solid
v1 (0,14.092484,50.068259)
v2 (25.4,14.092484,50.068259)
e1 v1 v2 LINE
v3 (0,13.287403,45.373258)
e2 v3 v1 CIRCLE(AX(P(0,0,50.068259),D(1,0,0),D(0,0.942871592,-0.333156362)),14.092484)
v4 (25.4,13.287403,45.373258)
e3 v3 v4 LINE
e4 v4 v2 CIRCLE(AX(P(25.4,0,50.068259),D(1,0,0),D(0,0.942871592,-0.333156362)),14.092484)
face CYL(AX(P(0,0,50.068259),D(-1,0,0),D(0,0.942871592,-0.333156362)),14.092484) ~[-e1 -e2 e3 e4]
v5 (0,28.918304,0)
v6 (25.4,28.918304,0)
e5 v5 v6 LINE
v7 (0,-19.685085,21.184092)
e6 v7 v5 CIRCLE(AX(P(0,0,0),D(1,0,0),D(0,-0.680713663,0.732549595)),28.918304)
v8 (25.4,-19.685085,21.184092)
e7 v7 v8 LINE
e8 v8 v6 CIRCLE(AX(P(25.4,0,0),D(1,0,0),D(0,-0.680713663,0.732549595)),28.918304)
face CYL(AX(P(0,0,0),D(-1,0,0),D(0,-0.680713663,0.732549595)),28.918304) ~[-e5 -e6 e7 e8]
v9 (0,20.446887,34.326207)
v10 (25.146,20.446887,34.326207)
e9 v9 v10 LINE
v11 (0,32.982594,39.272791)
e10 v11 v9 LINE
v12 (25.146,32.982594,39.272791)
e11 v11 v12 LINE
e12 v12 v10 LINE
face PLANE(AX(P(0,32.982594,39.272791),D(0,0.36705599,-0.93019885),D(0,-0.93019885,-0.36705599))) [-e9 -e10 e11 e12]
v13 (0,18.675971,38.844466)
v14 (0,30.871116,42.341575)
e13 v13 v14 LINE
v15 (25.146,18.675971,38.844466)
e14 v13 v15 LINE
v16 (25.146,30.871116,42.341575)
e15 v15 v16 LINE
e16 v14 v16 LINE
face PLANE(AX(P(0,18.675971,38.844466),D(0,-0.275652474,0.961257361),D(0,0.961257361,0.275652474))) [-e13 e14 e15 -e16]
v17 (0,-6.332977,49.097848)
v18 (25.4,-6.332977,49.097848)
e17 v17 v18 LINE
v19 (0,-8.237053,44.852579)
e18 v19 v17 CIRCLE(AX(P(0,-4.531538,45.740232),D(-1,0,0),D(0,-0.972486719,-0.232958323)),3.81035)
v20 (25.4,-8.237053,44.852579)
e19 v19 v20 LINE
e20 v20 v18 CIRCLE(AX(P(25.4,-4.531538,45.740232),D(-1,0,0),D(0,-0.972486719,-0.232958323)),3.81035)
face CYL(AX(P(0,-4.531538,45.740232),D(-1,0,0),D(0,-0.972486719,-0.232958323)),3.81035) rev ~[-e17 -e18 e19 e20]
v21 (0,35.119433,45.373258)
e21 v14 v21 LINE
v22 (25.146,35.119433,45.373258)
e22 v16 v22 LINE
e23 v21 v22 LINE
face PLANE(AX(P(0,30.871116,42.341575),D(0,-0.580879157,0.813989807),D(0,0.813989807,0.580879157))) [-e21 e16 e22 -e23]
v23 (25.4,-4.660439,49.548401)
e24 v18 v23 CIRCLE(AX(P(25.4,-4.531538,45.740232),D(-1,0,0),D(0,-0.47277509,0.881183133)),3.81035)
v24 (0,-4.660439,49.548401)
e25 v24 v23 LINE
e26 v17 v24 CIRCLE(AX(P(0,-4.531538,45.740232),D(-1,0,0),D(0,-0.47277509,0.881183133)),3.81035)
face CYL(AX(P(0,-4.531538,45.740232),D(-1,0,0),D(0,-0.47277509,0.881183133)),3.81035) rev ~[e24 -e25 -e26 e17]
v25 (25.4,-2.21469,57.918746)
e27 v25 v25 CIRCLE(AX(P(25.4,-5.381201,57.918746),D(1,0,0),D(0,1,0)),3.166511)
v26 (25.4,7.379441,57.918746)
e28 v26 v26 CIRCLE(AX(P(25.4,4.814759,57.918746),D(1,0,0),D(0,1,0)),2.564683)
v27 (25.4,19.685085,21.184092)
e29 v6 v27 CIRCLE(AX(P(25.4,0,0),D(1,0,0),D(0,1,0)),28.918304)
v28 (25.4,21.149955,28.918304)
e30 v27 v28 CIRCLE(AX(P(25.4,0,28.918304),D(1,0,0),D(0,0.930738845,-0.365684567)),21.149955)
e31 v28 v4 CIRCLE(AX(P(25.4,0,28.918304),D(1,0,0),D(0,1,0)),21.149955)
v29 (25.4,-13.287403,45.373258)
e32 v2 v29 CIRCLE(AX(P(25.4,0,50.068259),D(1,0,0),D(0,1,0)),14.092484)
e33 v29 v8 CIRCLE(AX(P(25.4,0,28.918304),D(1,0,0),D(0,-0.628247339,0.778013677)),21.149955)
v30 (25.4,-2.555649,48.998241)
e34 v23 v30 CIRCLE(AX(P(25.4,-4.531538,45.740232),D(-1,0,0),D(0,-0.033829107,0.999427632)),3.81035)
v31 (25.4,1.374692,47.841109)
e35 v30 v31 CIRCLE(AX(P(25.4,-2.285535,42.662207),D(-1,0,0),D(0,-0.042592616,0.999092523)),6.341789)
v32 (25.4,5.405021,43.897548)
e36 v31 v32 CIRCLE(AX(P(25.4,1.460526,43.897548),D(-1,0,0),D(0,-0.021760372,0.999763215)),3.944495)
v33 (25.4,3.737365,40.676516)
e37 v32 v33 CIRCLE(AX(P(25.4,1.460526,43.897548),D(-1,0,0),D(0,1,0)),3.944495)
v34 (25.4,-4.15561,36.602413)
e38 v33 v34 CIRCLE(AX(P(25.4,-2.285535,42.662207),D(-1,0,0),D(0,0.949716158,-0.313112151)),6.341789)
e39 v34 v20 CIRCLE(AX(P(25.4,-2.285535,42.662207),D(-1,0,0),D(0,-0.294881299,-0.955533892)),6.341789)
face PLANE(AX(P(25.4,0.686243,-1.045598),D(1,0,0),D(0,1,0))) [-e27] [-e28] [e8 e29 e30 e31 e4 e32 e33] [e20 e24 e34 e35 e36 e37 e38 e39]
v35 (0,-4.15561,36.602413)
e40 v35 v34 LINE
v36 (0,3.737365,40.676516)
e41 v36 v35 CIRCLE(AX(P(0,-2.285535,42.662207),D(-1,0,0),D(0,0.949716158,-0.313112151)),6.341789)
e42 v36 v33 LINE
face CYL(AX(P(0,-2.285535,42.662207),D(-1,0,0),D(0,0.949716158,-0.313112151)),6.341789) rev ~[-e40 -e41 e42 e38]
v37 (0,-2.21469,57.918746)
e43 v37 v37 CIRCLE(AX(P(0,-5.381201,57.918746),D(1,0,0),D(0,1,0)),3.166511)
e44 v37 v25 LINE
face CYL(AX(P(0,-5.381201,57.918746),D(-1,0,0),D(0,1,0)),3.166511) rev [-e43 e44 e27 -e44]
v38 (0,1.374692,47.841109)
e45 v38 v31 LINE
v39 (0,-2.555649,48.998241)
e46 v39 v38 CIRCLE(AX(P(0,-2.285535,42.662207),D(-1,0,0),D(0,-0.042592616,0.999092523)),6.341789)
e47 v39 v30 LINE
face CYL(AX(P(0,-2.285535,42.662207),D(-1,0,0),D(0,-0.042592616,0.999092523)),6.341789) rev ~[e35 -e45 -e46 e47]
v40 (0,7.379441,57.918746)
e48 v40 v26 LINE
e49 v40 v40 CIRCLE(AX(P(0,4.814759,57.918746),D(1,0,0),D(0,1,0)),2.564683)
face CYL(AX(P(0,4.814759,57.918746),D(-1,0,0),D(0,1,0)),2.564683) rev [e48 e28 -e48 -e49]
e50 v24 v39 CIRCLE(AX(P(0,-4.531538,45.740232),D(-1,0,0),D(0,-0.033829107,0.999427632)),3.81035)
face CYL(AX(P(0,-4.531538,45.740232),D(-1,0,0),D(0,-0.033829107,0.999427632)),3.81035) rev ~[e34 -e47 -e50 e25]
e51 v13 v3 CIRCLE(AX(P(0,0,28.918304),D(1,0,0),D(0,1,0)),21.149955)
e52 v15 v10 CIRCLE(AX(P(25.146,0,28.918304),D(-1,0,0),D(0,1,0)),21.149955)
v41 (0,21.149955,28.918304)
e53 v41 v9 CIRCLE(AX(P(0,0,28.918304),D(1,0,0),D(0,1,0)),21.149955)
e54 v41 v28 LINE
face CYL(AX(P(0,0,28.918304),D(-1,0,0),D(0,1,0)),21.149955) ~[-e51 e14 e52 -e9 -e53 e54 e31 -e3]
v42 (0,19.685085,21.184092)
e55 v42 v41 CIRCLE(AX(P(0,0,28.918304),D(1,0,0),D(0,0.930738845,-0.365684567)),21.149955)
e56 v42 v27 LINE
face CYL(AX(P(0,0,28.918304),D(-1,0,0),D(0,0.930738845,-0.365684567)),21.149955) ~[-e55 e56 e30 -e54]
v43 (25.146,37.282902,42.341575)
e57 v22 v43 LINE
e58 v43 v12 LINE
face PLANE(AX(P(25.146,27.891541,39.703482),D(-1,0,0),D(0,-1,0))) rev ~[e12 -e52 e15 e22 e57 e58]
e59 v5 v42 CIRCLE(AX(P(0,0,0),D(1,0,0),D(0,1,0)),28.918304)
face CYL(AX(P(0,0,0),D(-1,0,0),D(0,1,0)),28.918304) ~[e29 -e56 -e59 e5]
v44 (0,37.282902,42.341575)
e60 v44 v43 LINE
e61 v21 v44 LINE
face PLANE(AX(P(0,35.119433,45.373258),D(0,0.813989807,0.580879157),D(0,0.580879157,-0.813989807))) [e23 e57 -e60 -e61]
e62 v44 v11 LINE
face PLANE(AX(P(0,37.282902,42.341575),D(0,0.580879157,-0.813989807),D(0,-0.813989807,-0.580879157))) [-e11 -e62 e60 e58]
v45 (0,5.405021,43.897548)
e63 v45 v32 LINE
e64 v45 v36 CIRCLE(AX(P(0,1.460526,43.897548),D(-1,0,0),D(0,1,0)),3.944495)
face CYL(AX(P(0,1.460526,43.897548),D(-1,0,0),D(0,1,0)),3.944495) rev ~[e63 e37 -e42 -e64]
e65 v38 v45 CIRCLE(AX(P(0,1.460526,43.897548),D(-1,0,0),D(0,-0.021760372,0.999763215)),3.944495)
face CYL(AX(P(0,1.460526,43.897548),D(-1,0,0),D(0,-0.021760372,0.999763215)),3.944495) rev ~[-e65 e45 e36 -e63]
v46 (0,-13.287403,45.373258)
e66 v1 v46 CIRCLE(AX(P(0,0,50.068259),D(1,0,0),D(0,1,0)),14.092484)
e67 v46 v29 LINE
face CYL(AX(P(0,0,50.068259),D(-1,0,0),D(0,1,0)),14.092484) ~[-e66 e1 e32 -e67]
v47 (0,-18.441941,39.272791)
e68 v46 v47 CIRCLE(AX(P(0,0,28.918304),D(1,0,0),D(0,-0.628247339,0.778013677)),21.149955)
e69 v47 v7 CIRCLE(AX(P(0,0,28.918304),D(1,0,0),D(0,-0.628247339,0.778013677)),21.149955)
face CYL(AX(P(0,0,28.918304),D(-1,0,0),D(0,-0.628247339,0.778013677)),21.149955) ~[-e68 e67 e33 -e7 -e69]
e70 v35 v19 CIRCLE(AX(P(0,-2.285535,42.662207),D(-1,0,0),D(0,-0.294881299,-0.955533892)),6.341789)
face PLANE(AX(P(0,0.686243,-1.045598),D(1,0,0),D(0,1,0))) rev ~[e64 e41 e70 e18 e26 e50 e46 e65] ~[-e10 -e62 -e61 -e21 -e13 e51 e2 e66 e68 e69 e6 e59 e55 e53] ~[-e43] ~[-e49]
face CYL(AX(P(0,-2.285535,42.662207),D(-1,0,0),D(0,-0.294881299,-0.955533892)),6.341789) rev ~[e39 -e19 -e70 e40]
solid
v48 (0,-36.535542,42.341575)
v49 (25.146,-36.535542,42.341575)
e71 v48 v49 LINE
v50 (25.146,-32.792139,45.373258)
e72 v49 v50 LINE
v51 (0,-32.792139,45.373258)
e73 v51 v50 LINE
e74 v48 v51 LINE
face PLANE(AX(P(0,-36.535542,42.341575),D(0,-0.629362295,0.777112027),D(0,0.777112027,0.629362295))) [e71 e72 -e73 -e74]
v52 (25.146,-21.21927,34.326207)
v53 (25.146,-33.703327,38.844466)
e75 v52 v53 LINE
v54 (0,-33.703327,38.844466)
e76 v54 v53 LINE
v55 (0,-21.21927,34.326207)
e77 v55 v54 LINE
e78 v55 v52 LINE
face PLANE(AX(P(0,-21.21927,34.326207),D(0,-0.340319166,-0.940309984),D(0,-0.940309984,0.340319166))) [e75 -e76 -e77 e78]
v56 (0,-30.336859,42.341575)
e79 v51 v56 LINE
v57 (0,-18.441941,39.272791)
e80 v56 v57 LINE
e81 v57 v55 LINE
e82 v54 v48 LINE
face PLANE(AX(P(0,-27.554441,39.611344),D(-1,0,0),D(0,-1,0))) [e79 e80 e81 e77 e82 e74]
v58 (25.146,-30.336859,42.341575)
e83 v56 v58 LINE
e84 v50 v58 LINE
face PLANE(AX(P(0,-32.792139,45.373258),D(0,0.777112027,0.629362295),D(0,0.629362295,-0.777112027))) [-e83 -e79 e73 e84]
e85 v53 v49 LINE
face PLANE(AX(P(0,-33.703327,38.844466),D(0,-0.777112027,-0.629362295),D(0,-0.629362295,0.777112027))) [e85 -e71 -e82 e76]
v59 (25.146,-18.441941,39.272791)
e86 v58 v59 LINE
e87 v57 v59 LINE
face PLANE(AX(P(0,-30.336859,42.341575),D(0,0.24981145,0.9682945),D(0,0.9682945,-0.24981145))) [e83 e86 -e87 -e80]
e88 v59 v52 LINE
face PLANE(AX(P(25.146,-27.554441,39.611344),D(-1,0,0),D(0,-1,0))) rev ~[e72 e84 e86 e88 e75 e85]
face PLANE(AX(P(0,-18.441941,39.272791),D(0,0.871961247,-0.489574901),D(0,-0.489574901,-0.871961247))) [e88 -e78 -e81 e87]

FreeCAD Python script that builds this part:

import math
import FreeCAD as App
import Part
import Sketcher
Q = App.Units.Quantity


def add_polygon(sketch, points):
    """Adds a closed chain of lines whose ends are joined by coincident constraints."""
    first, n = sketch.GeometryCount, len(points)
    for a, b in zip(points, points[1:] + points[:1]):
        sketch.addGeometry(Part.LineSegment(App.Vector(*a, 0), App.Vector(*b, 0)), False)
    for i in range(n):
        sketch.addConstraint(Sketcher.Constraint("Coincident", first + i, 2, first + (i + 1) % n, 1))

doc = App.newDocument("Part")
params = doc.addObject("Spreadsheet::Sheet", "Params")
for row, (alias, value) in enumerate([
    ("pad1_length", "1 in"),
    ("pad2_length", "0.99 in"),
], start=1):
    params.set(f"A{row}", alias)
    params.set(f"B{row}", "=" + value)
    params.setAlias(f"B{row}", alias)

body = doc.addObject("PartDesign::Body", "Body")
body.AllowCompound = True

sketch1 = body.newObject("Sketcher::SketchObject", "Sketch")
sketch1.AttachmentSupport = (doc.getObject("YZ_Plane"), [""])
sketch1.MapMode = "FlatFace"
sketch1.addGeometry([
    Part.ArcOfCircle(Part.Circle(App.Vector(0, 28.9, 0), App.Vector(0, 0, 1), 21.1), math.radians(0), math.radians(51)),
    Part.ArcOfCircle(Part.Circle(App.Vector(0, 50.1, 0), App.Vector(0, 0, 1), 14.1), math.radians(-19.46), math.radians(0)),
    Part.ArcOfCircle(Part.Circle(App.Vector(0, 50.1, 0), App.Vector(0, 0, 1), 14.1), math.radians(0), math.radians(199)),
    Part.ArcOfCircle(Part.Circle(App.Vector(0, 28.9, 0), App.Vector(0, 0, 1), 21.1), math.radians(129), math.radians(201)),
    Part.ArcOfCircle(Part.Circle(App.Vector(0, 0, 0), App.Vector(0, 0, 1), 28.9), math.radians(133), math.radians(360)),
    Part.ArcOfCircle(Part.Circle(App.Vector(0, 0, 0), App.Vector(0, 0, 1), 28.9), math.radians(0), math.radians(47)),
    Part.ArcOfCircle(Part.Circle(App.Vector(0, 28.9, 0), App.Vector(0, 0, 1), 21.1), math.radians(-21), math.radians(0)),
    Part.ArcOfCircle(Part.Circle(App.Vector(-4.5, 45.7, 0), App.Vector(0, 0, 1), 3.8), math.radians(92), math.radians(118)),
    Part.ArcOfCircle(Part.Circle(App.Vector(-4.5, 45.7, 0), App.Vector(0, 0, 1), 3.8), math.radians(59), math.radians(92)),
    Part.ArcOfCircle(Part.Circle(App.Vector(-2.3, 42.7, 0), App.Vector(0, 0, 1), 6.3), math.radians(55), math.radians(92)),
    Part.ArcOfCircle(Part.Circle(App.Vector(1.5, 43.9, 0), App.Vector(0, 0, 1), 3.9), math.radians(0), math.radians(91)),
    Part.ArcOfCircle(Part.Circle(App.Vector(1.5, 43.9, 0), App.Vector(0, 0, 1), 3.9), math.radians(-55), math.radians(0)),
    Part.ArcOfCircle(Part.Circle(App.Vector(-2.3, 42.7, 0), App.Vector(0, 0, 1), 6.3), math.radians(-107), math.radians(-18)),
    Part.ArcOfCircle(Part.Circle(App.Vector(-2.3, 42.7, 0), App.Vector(0, 0, 1), 6.3), math.radians(160), math.radians(253)),
    Part.ArcOfCircle(Part.Circle(App.Vector(-4.5, 45.7, 0), App.Vector(0, 0, 1), 3.8), math.radians(118), math.radians(193)),
    Part.Circle(App.Vector(-5.4, 57.9, 0), App.Vector(0, 0, 1), 3.2),
    Part.Circle(App.Vector(4.8, 57.9, 0), App.Vector(0, 0, 1), 2.6),
], False)
sketch1.addConstraint([
    Sketcher.Constraint("Coincident", 0, 2, 1, 1),
    Sketcher.Constraint("Tangent", 1, 2, 2, 1),
    Sketcher.Constraint("Coincident", 2, 2, 3, 1),
    Sketcher.Constraint("Coincident", 3, 2, 4, 1),
    Sketcher.Constraint("Tangent", 4, 2, 5, 1),
    Sketcher.Constraint("Coincident", 5, 2, 6, 1),
    Sketcher.Constraint("Tangent", 6, 2, 0, 1),
    Sketcher.Constraint("Tangent", 7, 1, 8, 2),
    Sketcher.Constraint("Coincident", 8, 1, 9, 2),
    Sketcher.Constraint("Coincident", 9, 1, 10, 2),
    Sketcher.Constraint("Tangent", 10, 1, 11, 2),
    Sketcher.Constraint("Coincident", 11, 1, 12, 2),
    Sketcher.Constraint("Tangent", 12, 1, 13, 2),
    Sketcher.Constraint("Coincident", 13, 1, 14, 2),
    Sketcher.Constraint("Tangent", 14, 1, 7, 2),
    Sketcher.Constraint("Coincident", 4, 3, -1, 1),
    Sketcher.Constraint("Coincident", 3, 3, 0, 3),
    Sketcher.Constraint("Coincident", 12, 3, 9, 3),
    Sketcher.Constraint("Equal", 1, 2),
    Sketcher.Constraint("Equal", 0, 3),
    Sketcher.Constraint("Equal", 4, 5),
    Sketcher.Constraint("Equal", 3, 6),
    Sketcher.Constraint("Equal", 7, 8),
    Sketcher.Constraint("Equal", 10, 11),
    Sketcher.Constraint("Equal", 9, 12),
    Sketcher.Constraint("Equal", 12, 13),
    Sketcher.Constraint("Equal", 8, 14),
    Sketcher.Constraint("Symmetric", 0, 2, 2, 2, -2),
    Sketcher.Constraint("PointOnObject", 4, 2, -1),
    Sketcher.Constraint("Horizontal", 15, 3, 16, 3),
    Sketcher.Constraint("Horizontal", 2, 3, 1, 2),
    Sketcher.Constraint("Horizontal", 3, 3, 6, 2),
    Sketcher.Constraint("Horizontal", 11, 3, 10, 1),
    Sketcher.Constraint("Radius", 7, Q("3.81035 mm")),
    Sketcher.Constraint("Radius", 9, Q("6.341789 mm")),
    Sketcher.Constraint("Diameter", 15, Q("6.333022 mm")),
    Sketcher.Constraint("Diameter", 16, Q("5.129365 mm")),
    Sketcher.Constraint("Radius", 0, Q("21.149955 mm")),
    Sketcher.Constraint("Radius", 1, Q("14.092484 mm")),
    Sketcher.Constraint("Radius", 4, Q("28.918304 mm")),
    Sketcher.Constraint("Radius", 10, Q("3.944495 mm")),
    Sketcher.Constraint("DistanceX", 15, 3, -1, 1, Q("5.381201 mm")),
    Sketcher.Constraint("DistanceY", -1, 1, 7, 1, Q("49.548401 mm")),
    Sketcher.Constraint("DistanceY", 10, 3, 16, 3, Q("14.021198 mm")),
    Sketcher.Constraint("DistanceY", 0, 2, 2, 3, Q("4.695001 mm")),
    Sketcher.Constraint("DistanceX", 7, 1, 7, 3, Q("0.128901 mm")),
    Sketcher.Constraint("DistanceX", 9, 3, 11, 1, Q("6.0229 mm")),
    Sketcher.Constraint("DistanceY", -1, 1, 1, 3, Q("50.068259 mm")),
    Sketcher.Constraint("DistanceX", 7, 3, -1, 1, Q("4.531538 mm")),
    Sketcher.Constraint("DistanceY", -1, 1, 10, 3, Q("43.897548 mm")),
    Sketcher.Constraint("DistanceX", -1, 1, 16, 3, Q("4.814759 mm")),
    Sketcher.Constraint("DistanceX", 8, 1, -1, 1, Q("2.555649 mm")),
    Sketcher.Constraint("DistanceX", -1, 1, 10, 1, Q("5.405021 mm")),
    Sketcher.Constraint("DistanceX", 12, 1, -1, 1, Q("4.15561 mm")),
    Sketcher.Constraint("DistanceX", 14, 1, 8, 1, Q("3.777328 mm")),
])
pad1 = body.newObject("PartDesign::Pad", "Pad")
pad1.Profile = sketch1
pad1.setExpression("Length", "Params.pad1_length")

sketch2 = body.newObject("Sketcher::SketchObject", "Sketch001")
sketch2.AttachmentSupport = (doc.getObject("YZ_Plane"), [""])
sketch2.MapMode = "FlatFace"
add_polygon(sketch2, [(20.4, 34.3), (18.7, 38.8), (30.9, 42.3), (35.1, 45.4), (37.3, 42.3), (33, 39.3)])
add_polygon(sketch2, [(-30.3, 42.3), (-18.4, 39.3), (-21.2, 34.3), (-33.7, 38.8), (-36.5, 42.3), (-32.8, 45.4)])
sketch2.addConstraint([
    Sketcher.Constraint("Perpendicular", 2, 3),
    Sketcher.Constraint("Perpendicular", 3, 4),
    Sketcher.Constraint("Perpendicular", 9, 10),
    Sketcher.Constraint("Perpendicular", 10, 11),
    Sketcher.Constraint("Horizontal", 1, 2, 3, 2),
    Sketcher.Constraint("Horizontal", 4, 2, 6, 2),
    Sketcher.Constraint("Horizontal", 5, 2, 7, 2),
    Sketcher.Constraint("Horizontal", 0, 2, 8, 2),
    Sketcher.Constraint("Horizontal", 3, 2, 9, 2),
    Sketcher.Constraint("Horizontal", 2, 2, 10, 2),
    Sketcher.Constraint("Horizontal", 9, 2, 11, 2),
    Sketcher.Constraint("DistanceX", 7, 2, 5, 2, Q("1.6403999 in")),
    Sketcher.Constraint("Distance", 4, Q("5.282999 mm")),
    Sketcher.Constraint("Distance", 6, Q("12.284402 mm")),
    Sketcher.Constraint("DistanceX", -1, 1, 3, 2, Q("37.282902 mm")),
    Sketcher.Constraint("DistanceX", 8, 2, 0, 2, Q("52.379298 mm")),
    Sketcher.Constraint("DistanceX", 9, 2, 6, 2, Q("18.093601 mm")),
    Sketcher.Constraint("Distance", 1, Q("12.686659 mm")),
    Sketcher.Constraint("Distance", 2, Q("5.219128 mm")),
    Sketcher.Constraint("Distance", 7, Q("5.67294 mm")),
    Sketcher.Constraint("Distance", 10, Q("4.817071 mm")),
    Sketcher.Constraint("DistanceX", -1, 1, 0, 2, Q("18.675971 mm")),
    Sketcher.Constraint("DistanceY", -1, 1, 4, 2, Q("39.272791 mm")),
    Sketcher.Constraint("DistanceX", 7, 2, -1, 1, Q("21.21927 mm")),
])
pad2 = body.newObject("PartDesign::Pad", "Pad001")
pad2.Profile = sketch2
pad2.setExpression("Length", "Params.pad2_length")

doc.recompute()
